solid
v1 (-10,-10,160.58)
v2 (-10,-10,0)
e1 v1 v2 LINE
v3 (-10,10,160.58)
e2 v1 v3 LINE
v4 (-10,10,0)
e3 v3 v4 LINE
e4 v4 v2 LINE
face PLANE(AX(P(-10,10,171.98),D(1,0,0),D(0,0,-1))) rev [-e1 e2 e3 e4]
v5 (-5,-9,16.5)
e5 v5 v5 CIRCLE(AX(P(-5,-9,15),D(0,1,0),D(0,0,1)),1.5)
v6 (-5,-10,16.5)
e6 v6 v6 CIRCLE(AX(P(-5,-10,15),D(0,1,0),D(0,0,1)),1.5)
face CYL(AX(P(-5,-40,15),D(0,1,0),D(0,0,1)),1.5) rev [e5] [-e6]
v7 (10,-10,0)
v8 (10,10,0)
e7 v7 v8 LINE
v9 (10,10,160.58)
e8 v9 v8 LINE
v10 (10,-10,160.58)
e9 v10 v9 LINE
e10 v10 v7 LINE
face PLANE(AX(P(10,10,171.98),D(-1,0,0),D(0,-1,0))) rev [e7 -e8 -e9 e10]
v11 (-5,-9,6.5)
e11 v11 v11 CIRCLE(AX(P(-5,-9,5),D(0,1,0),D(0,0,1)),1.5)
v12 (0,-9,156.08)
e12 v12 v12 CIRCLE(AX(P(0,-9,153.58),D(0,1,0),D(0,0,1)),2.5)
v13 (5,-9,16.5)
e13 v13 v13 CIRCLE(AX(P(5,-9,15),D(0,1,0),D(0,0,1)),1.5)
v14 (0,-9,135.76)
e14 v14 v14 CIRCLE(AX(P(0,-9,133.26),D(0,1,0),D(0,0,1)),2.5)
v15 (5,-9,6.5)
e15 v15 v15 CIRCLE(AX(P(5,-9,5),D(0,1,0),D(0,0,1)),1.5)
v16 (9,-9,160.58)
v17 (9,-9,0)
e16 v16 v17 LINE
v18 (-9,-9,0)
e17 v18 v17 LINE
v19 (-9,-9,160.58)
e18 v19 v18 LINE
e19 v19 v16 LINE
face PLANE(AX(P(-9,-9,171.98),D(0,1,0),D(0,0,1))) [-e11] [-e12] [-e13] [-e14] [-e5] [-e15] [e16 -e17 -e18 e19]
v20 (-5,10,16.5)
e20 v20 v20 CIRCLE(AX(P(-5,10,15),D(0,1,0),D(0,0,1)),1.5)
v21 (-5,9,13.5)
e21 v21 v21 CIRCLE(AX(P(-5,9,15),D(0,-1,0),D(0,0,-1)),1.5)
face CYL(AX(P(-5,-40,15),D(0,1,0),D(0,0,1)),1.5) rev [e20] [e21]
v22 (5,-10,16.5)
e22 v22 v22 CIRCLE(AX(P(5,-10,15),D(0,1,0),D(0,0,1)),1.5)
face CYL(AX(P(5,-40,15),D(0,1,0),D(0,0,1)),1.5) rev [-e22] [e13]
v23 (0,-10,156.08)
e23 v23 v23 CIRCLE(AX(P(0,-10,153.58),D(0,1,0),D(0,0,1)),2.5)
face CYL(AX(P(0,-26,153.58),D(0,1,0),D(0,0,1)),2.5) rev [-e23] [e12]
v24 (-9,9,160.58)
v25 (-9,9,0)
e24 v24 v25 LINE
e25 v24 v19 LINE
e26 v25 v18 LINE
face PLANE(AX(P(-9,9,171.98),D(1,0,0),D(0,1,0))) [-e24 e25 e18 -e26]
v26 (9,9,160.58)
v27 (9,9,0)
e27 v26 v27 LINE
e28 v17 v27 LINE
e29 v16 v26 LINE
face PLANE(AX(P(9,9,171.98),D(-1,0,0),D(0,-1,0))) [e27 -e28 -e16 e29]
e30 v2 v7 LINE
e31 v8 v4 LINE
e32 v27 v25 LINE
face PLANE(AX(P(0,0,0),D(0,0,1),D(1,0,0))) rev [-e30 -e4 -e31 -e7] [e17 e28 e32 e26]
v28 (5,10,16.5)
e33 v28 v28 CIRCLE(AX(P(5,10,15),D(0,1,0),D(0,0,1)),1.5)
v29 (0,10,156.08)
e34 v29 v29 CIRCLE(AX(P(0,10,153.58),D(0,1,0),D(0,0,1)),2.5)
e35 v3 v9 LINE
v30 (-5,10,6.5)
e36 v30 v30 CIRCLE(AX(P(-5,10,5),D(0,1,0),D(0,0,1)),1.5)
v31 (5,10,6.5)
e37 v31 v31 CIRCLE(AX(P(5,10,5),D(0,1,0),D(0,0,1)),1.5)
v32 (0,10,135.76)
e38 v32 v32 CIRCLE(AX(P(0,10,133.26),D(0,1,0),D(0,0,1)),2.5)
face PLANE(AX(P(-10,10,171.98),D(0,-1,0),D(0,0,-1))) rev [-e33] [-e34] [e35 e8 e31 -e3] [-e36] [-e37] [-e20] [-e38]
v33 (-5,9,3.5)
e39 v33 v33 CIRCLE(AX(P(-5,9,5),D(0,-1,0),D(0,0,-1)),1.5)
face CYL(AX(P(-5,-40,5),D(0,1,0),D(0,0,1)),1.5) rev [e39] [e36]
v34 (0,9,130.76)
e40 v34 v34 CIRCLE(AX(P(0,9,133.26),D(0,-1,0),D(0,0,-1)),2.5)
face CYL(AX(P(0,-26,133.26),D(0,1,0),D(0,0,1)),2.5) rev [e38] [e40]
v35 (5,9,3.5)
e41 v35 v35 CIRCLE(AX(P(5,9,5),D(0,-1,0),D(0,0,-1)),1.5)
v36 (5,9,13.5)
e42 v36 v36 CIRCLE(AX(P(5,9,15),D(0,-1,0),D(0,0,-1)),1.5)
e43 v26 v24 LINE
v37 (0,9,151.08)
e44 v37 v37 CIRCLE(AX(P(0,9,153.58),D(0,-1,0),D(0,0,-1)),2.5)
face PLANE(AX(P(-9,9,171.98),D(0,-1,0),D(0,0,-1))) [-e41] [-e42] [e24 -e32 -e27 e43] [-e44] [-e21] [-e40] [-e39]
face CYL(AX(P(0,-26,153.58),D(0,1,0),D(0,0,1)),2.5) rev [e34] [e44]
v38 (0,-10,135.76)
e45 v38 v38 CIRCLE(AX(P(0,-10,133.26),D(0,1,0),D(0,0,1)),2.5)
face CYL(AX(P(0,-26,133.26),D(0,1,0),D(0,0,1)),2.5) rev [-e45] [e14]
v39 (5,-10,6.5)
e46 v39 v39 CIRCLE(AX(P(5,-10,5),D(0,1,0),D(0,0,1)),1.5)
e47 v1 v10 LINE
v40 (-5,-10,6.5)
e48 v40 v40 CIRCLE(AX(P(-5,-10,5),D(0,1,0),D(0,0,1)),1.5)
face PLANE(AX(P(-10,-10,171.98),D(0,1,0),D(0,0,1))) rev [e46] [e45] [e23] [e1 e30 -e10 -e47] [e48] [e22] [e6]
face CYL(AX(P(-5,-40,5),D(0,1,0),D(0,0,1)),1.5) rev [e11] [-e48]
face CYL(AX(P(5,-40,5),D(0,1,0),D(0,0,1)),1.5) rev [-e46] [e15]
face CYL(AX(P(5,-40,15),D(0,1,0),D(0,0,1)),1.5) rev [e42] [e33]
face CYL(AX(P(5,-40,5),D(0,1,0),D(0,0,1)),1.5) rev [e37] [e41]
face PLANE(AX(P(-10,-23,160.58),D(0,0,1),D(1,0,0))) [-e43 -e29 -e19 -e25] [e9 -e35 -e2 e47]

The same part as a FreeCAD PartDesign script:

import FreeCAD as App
import Part
import Sketcher

doc = App.newDocument("Part")
body = doc.addObject("PartDesign::Body", "Body")

# Sketch on XY plane
sketch1 = body.newObject("Sketcher::SketchObject", "Sketch")
sketch1.AttachmentSupport = (doc.getObject("XY_Plane"), [""])
sketch1.MapMode = "FlatFace"
sketch1.addGeometry([
    Part.LineSegment(App.Vector(-10, 10, 0), App.Vector(-10, -10, 0)),  # 0
    Part.LineSegment(App.Vector(-10, -10, 0), App.Vector(10, -10, 0)),  # 1
    Part.LineSegment(App.Vector(10, -10, 0), App.Vector(10, 10, 0)),  # 2
    Part.LineSegment(App.Vector(10, 10, 0), App.Vector(-10, 10, 0)),  # 3
    Part.LineSegment(App.Vector(9, -9, 0), App.Vector(-9, -9, 0)),  # 4
    Part.LineSegment(App.Vector(-9, -9, 0), App.Vector(-9, 9, 0)),  # 5
    Part.LineSegment(App.Vector(-9, 9, 0), App.Vector(9, 9, 0)),  # 6
    Part.LineSegment(App.Vector(9, 9, 0), App.Vector(9, -9, 0)),  # 7
], False)
sketch1.addConstraint([
    Sketcher.Constraint("Coincident", 0, 2, 1, 1),
    Sketcher.Constraint("Coincident", 1, 2, 2, 1),
    Sketcher.Constraint("Coincident", 2, 2, 3, 1),
    Sketcher.Constraint("Coincident", 3, 2, 0, 1),
    Sketcher.Constraint("Coincident", 4, 2, 5, 1),
    Sketcher.Constraint("Coincident", 5, 2, 6, 1),
    Sketcher.Constraint("Coincident", 6, 2, 7, 1),
    Sketcher.Constraint("Coincident", 7, 2, 4, 1),
    Sketcher.Constraint("Vertical", 0),
    Sketcher.Constraint("Horizontal", 1),
    Sketcher.Constraint("Vertical", 2),
    Sketcher.Constraint("Horizontal", 3),
    Sketcher.Constraint("Horizontal", 4),
    Sketcher.Constraint("Vertical", 5),
    Sketcher.Constraint("Horizontal", 6),
    Sketcher.Constraint("Vertical", 7),
    Sketcher.Constraint("Symmetric", 0, 2, 2, 2, -1, 1),
    Sketcher.Constraint("Symmetric", 4, 2, 6, 2, -1, 1),
    Sketcher.Constraint("Equal", 3, 0),
    Sketcher.Constraint("Equal", 6, 5),
    Sketcher.Constraint("DistanceX", 1, 1, 1, 2, 20.0),
    Sketcher.Constraint("DistanceX", 4, 2, 4, 1, 18.0),
])
pad1 = body.newObject("PartDesign::Pad", "Pad")
pad1.Profile = sketch1
pad1.Length = 171.98

# Sketch on XZ plane
sketch2 = body.newObject("Sketcher::SketchObject", "Sketch001")
sketch2.AttachmentSupport = (doc.getObject("XZ_Plane"), [""])
sketch2.MapMode = "FlatFace"
sketch2.AttachmentOffset = App.Placement(App.Vector(0, 0, -10), App.Rotation())
sketch2.addGeometry([
    Part.Circle(App.Vector(-5, 5, 0), App.Vector(0, 0, 1), 1.5),  # 0
    Part.Circle(App.Vector(5, 5, 0), App.Vector(0, 0, 1), 1.5),  # 1
    Part.Circle(App.Vector(-5, 15, 0), App.Vector(0, 0, 1), 1.5),  # 2
    Part.Circle(App.Vector(5, 15, 0), App.Vector(0, 0, 1), 1.5),  # 3
    Part.Circle(App.Vector(-5, 235, 0), App.Vector(0, 0, 1), 1.5),  # 4
    Part.Circle(App.Vector(5, 245, 0), App.Vector(0, 0, 1), 1.5),  # 5
    Part.Circle(App.Vector(5, 235, 0), App.Vector(0, 0, 1), 1.5),  # 6
    Part.Circle(App.Vector(-5, 245, 0), App.Vector(0, 0, 1), 1.5),  # 7
], False)
sketch2.addConstraint([
    Sketcher.Constraint("Equal", 0, 1),
    Sketcher.Constraint("Equal", 1, 2),
    Sketcher.Constraint("Equal", 2, 3),
    Sketcher.Constraint("Equal", 3, 4),
    Sketcher.Constraint("Equal", 4, 5),
    Sketcher.Constraint("Equal", 5, 6),
    Sketcher.Constraint("Equal", 6, 7),
    Sketcher.Constraint("Symmetric", 0, 3, 1, 3, -2),
    Sketcher.Constraint("Symmetric", 2, 3, 3, 3, -2),
    Sketcher.Constraint("Symmetric", 4, 3, 6, 3, -2),
    Sketcher.Constraint("Symmetric", 5, 3, 7, 3, -2),
    Sketcher.Constraint("Vertical", 0, 3, 2, 3),
    Sketcher.Constraint("Vertical", 2, 3, 4, 3),
    Sketcher.Constraint("Vertical", 3, 3, 5, 3),
    Sketcher.Constraint("Diameter", 0, 3.0),
    Sketcher.Constraint("DistanceX", 0, 3, -1, 1, 5.0),
    Sketcher.Constraint("DistanceY", -1, 1, 0, 3, 5.0),
    Sketcher.Constraint("DistanceY", -1, 1, 2, 3, 15.0),
    Sketcher.Constraint("DistanceY", -1, 1, 4, 3, 235.0),
    Sketcher.Constraint("DistanceY", -1, 1, 5, 3, 245.0),
])
pocket1 = body.newObject("PartDesign::Pocket", "Pocket")
pocket1.Profile = sketch2
pocket1.Length = 50
pocket1.Reversed = True

# Sketch on XZ plane
sketch3 = body.newObject("Sketcher::SketchObject", "Sketch002")
sketch3.AttachmentSupport = (doc.getObject("XZ_Plane"), [""])
sketch3.MapMode = "FlatFace"
sketch3.AttachmentOffset = App.Placement(App.Vector(0, 0, 10), App.Rotation())
sketch3.addGeometry([
    Part.LineSegment(App.Vector(-10, 172, 0), App.Vector(-10, 164, 0)),
    Part.LineSegment(App.Vector(-10, 164, 0), App.Vector(10, 164, 0)),
    Part.LineSegment(App.Vector(10, 164, 0), App.Vector(10, 172, 0)),
    Part.LineSegment(App.Vector(10, 172, 0), App.Vector(-10, 172, 0)),
], False)
sketch3.addConstraint([
    Sketcher.Constraint("Coincident", 0, 2, 1, 1),
    Sketcher.Constraint("Coincident", 1, 2, 2, 1),
    Sketcher.Constraint("Coincident", 2, 2, 3, 1),
    Sketcher.Constraint("Coincident", 3, 2, 0, 1),
    Sketcher.Constraint("Vertical", 0),
    Sketcher.Constraint("Horizontal", 1),
    Sketcher.Constraint("Vertical", 2),
    Sketcher.Constraint("Horizontal", 3),
    Sketcher.Constraint("DistanceX", 1, 1, 1, 2, 20.0),
    Sketcher.Constraint("DistanceY", 0, 2, 0, 1, 8.4),
    Sketcher.Constraint("DistanceX", 0, 2, -1, 1, 10.0),
    Sketcher.Constraint("DistanceY", -1, 1, 0, 2, 163.58),
])
pocket2 = body.newObject("PartDesign::Pocket", "Pocket001")
pocket2.Profile = sketch3
pocket2.Type = "ThroughAll"

# Sketch on XZ plane
sketch4 = body.newObject("Sketcher::SketchObject", "Sketch003")
sketch4.AttachmentSupport = (doc.getObject("XZ_Plane"), [""])
sketch4.MapMode = "FlatFace"
sketch4.AttachmentOffset = App.Placement(App.Vector(0, 0, -10), App.Rotation())
sketch4.addGeometry([
    Part.Circle(App.Vector(0, 153.6, 0), App.Vector(0, 0, 1), 2.5),
    Part.Circle(App.Vector(0, 133.3, 0), App.Vector(0, 0, 1), 2.5),
], False)
sketch4.addConstraint([
    Sketcher.Constraint("Equal", 0, 1),
    Sketcher.Constraint("PointOnObject", 0, 3, -2),
    Sketcher.Constraint("PointOnObject", 1, 3, -2),
    Sketcher.Constraint("Diameter", 0, 5.0),
    Sketcher.Constraint("DistanceY", -1, 1, 0, 3, 153.58),
    Sketcher.Constraint("DistanceY", -1, 1, 1, 3, 133.26),
])
pocket3 = body.newObject("PartDesign::Pocket", "Pocket002")
pocket3.Profile = sketch4
pocket3.Length = 36
pocket3.Reversed = True

# Sketch on XZ plane
sketch5 = body.newObject("Sketcher::SketchObject", "Sketch004")
sketch5.AttachmentSupport = (doc.getObject("XZ_Plane"), [""])
sketch5.MapMode = "FlatFace"
sketch5.AttachmentOffset = App.Placement(App.Vector(0, 0, -10), App.Rotation())
sketch5.addGeometry([
    Part.LineSegment(App.Vector(-10, 160.6, 0), App.Vector(-10, 163.6, 0)),
    Part.LineSegment(App.Vector(-10, 163.6, 0), App.Vector(10, 163.6, 0)),
    Part.LineSegment(App.Vector(10, 163.6, 0), App.Vector(10, 160.6, 0)),
    Part.LineSegment(App.Vector(10, 160.6, 0), App.Vector(-10, 160.6, 0)),
], False)
sketch5.addConstraint([
    Sketcher.Constraint("Coincident", 0, 2, 1, 1),
    Sketcher.Constraint("Coincident", 1, 2, 2, 1),
    Sketcher.Constraint("Coincident", 2, 2, 3, 1),
    Sketcher.Constraint("Coincident", 3, 2, 0, 1),
    Sketcher.Constraint("Vertical", 0),
    Sketcher.Constraint("Horizontal", 1),
    Sketcher.Constraint("Vertical", 2),
    Sketcher.Constraint("Horizontal", 3),
    Sketcher.Constraint("DistanceX", 1, 1, 1, 2, 20.0),
    Sketcher.Constraint("DistanceY", 0, 1, 0, 2, 3.0),
    Sketcher.Constraint("DistanceX", 0, 2, -1, 1, 10.0),
    Sketcher.Constraint("DistanceY", -1, 1, 0, 2, 163.58),
])
pocket4 = body.newObject("PartDesign::Pocket", "Pocket003")
pocket4.Profile = sketch5
pocket4.Length = 33
pocket4.Reversed = True

doc.recompute()
